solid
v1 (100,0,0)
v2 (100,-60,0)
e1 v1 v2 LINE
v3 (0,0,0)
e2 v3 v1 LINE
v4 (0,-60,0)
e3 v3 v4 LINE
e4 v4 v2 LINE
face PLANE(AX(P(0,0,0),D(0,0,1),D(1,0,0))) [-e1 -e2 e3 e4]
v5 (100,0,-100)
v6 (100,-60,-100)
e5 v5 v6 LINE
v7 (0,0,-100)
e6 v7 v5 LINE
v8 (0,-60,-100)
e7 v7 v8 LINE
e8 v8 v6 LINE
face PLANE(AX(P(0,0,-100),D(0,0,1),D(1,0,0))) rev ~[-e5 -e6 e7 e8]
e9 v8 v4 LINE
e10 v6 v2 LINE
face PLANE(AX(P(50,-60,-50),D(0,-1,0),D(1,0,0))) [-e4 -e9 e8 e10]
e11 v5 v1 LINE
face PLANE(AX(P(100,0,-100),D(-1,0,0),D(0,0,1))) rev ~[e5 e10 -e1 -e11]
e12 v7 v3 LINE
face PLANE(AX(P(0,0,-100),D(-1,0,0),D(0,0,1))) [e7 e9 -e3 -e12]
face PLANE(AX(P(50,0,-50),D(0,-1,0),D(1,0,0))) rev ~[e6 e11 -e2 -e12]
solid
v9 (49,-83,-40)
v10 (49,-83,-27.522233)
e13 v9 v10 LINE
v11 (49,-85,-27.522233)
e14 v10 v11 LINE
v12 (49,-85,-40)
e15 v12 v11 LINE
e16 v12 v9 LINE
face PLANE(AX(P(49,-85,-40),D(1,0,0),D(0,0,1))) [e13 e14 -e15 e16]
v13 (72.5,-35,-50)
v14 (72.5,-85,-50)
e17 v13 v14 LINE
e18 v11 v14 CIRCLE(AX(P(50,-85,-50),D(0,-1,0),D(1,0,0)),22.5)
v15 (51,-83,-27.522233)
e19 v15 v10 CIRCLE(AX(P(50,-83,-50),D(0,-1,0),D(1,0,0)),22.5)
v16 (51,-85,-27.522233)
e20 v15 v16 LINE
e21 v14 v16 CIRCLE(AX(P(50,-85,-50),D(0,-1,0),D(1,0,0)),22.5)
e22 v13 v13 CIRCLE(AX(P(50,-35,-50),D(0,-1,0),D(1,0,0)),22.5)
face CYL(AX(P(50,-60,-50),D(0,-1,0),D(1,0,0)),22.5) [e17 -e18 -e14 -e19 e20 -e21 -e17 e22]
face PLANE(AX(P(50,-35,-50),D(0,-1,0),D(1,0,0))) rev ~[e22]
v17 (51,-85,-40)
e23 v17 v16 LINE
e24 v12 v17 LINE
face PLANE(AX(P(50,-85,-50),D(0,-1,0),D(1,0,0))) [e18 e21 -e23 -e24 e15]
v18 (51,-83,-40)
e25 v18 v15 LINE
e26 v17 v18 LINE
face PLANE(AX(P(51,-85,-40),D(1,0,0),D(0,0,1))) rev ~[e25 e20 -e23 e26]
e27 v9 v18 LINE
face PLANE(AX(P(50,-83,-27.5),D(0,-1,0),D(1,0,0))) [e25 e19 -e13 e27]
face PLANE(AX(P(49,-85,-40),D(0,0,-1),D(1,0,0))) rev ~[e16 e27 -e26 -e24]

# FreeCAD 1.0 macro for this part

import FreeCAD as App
import Part
import Sketcher
from FreeCAD import Vector


def add_polygon(sketch, points):
    """Adds a closed chain of lines whose ends are joined by coincident constraints."""
    first, n = sketch.GeometryCount, len(points)
    for a, b in zip(points, points[1:] + points[:1]):
        sketch.addGeometry(Part.LineSegment(App.Vector(*a, 0), App.Vector(*b, 0)), False)
    for i in range(n):
        sketch.addConstraint(Sketcher.Constraint("Coincident", first + i, 2, first + (i + 1) % n, 1))

doc = App.newDocument("Part")
body = doc.addObject("PartDesign::Body", "Body")

# Sketch on XZ plane
sketch1 = body.newObject("Sketcher::SketchObject", "Sketch")
sketch1.AttachmentSupport = (doc.getObject("XZ_Plane"), [""])
sketch1.MapMode = "FlatFace"
add_polygon(sketch1, [(0, 0), (0, -100), (100, -100), (100, 0)])  # lines 0-3
sketch1.addConstraint([
    Sketcher.Constraint("Vertical", 0),
    Sketcher.Constraint("Horizontal", 1),
    Sketcher.Constraint("Vertical", 2),
    Sketcher.Constraint("Horizontal", 3),
    Sketcher.Constraint("Coincident", 3, 2, -1, 1),
    Sketcher.Constraint("Equal", 3, 0),
    Sketcher.Constraint("DistanceX", 1, 1, 1, 2, 100.0),
])
pad1 = body.newObject("PartDesign::Pad", "Pad")
pad1.Profile = sketch1
pad1.Length = 60
body2 = doc.addObject("PartDesign::Body", "Body001")

# Sketch on XZ plane
sketch2 = body2.newObject("Sketcher::SketchObject", "Sketch001")
sketch2.AttachmentSupport = (doc.getObject("XZ_Plane001"), [""])
sketch2.MapMode = "FlatFace"
sketch2.AttachmentOffset = App.Placement(Vector(0, 0, 60), App.Rotation())
sketch2.addGeometry(Part.Circle(Vector(50, -50, 0), Vector(0, 0, 1), 22.5), False)
sketch2.addConstraint([
    Sketcher.Constraint("Diameter", 0, 45.0),
    Sketcher.Constraint("DistanceX", -1, 1, 0, 3, 50.0),
    Sketcher.Constraint("DistanceY", 0, 3, -1, 1, 50.0),
])
pad2 = body2.newObject("PartDesign::Pad", "Pad001")
pad2.Profile = sketch2
pad2.Type = "TwoLengths"
pad2.Length = 25
pad2.Length2 = 25

# Sketch on XZ plane
sketch3 = body2.newObject("Sketcher::SketchObject", "Sketch002")
sketch3.AttachmentSupport = (doc.getObject("XZ_Plane001"), [""])
sketch3.MapMode = "FlatFace"
sketch3.AttachmentOffset = App.Placement(Vector(0, 0, 85), App.Rotation())
add_polygon(sketch3, [(49, -15), (49, -40), (51, -40), (51, -15)])  # lines 0-3
sketch3.addConstraint([
    Sketcher.Constraint("Vertical", 0),
    Sketcher.Constraint("Horizontal", 1),
    Sketcher.Constraint("Vertical", 2),
    Sketcher.Constraint("Horizontal", 3),
    Sketcher.Constraint("DistanceX", 1, 1, 1, 2, 2.0),
    Sketcher.Constraint("DistanceY", 0, 2, 0, 1, 25.0),
    Sketcher.Constraint("DistanceX", -1, 1, 0, 2, 49.0),
    Sketcher.Constraint("DistanceY", 0, 2, -1, 1, 40.0),
])
pocket1 = body2.newObject("PartDesign::Pocket", "Pocket")
pocket1.Profile = sketch3
pocket1.Length = 2

doc.recompute()
